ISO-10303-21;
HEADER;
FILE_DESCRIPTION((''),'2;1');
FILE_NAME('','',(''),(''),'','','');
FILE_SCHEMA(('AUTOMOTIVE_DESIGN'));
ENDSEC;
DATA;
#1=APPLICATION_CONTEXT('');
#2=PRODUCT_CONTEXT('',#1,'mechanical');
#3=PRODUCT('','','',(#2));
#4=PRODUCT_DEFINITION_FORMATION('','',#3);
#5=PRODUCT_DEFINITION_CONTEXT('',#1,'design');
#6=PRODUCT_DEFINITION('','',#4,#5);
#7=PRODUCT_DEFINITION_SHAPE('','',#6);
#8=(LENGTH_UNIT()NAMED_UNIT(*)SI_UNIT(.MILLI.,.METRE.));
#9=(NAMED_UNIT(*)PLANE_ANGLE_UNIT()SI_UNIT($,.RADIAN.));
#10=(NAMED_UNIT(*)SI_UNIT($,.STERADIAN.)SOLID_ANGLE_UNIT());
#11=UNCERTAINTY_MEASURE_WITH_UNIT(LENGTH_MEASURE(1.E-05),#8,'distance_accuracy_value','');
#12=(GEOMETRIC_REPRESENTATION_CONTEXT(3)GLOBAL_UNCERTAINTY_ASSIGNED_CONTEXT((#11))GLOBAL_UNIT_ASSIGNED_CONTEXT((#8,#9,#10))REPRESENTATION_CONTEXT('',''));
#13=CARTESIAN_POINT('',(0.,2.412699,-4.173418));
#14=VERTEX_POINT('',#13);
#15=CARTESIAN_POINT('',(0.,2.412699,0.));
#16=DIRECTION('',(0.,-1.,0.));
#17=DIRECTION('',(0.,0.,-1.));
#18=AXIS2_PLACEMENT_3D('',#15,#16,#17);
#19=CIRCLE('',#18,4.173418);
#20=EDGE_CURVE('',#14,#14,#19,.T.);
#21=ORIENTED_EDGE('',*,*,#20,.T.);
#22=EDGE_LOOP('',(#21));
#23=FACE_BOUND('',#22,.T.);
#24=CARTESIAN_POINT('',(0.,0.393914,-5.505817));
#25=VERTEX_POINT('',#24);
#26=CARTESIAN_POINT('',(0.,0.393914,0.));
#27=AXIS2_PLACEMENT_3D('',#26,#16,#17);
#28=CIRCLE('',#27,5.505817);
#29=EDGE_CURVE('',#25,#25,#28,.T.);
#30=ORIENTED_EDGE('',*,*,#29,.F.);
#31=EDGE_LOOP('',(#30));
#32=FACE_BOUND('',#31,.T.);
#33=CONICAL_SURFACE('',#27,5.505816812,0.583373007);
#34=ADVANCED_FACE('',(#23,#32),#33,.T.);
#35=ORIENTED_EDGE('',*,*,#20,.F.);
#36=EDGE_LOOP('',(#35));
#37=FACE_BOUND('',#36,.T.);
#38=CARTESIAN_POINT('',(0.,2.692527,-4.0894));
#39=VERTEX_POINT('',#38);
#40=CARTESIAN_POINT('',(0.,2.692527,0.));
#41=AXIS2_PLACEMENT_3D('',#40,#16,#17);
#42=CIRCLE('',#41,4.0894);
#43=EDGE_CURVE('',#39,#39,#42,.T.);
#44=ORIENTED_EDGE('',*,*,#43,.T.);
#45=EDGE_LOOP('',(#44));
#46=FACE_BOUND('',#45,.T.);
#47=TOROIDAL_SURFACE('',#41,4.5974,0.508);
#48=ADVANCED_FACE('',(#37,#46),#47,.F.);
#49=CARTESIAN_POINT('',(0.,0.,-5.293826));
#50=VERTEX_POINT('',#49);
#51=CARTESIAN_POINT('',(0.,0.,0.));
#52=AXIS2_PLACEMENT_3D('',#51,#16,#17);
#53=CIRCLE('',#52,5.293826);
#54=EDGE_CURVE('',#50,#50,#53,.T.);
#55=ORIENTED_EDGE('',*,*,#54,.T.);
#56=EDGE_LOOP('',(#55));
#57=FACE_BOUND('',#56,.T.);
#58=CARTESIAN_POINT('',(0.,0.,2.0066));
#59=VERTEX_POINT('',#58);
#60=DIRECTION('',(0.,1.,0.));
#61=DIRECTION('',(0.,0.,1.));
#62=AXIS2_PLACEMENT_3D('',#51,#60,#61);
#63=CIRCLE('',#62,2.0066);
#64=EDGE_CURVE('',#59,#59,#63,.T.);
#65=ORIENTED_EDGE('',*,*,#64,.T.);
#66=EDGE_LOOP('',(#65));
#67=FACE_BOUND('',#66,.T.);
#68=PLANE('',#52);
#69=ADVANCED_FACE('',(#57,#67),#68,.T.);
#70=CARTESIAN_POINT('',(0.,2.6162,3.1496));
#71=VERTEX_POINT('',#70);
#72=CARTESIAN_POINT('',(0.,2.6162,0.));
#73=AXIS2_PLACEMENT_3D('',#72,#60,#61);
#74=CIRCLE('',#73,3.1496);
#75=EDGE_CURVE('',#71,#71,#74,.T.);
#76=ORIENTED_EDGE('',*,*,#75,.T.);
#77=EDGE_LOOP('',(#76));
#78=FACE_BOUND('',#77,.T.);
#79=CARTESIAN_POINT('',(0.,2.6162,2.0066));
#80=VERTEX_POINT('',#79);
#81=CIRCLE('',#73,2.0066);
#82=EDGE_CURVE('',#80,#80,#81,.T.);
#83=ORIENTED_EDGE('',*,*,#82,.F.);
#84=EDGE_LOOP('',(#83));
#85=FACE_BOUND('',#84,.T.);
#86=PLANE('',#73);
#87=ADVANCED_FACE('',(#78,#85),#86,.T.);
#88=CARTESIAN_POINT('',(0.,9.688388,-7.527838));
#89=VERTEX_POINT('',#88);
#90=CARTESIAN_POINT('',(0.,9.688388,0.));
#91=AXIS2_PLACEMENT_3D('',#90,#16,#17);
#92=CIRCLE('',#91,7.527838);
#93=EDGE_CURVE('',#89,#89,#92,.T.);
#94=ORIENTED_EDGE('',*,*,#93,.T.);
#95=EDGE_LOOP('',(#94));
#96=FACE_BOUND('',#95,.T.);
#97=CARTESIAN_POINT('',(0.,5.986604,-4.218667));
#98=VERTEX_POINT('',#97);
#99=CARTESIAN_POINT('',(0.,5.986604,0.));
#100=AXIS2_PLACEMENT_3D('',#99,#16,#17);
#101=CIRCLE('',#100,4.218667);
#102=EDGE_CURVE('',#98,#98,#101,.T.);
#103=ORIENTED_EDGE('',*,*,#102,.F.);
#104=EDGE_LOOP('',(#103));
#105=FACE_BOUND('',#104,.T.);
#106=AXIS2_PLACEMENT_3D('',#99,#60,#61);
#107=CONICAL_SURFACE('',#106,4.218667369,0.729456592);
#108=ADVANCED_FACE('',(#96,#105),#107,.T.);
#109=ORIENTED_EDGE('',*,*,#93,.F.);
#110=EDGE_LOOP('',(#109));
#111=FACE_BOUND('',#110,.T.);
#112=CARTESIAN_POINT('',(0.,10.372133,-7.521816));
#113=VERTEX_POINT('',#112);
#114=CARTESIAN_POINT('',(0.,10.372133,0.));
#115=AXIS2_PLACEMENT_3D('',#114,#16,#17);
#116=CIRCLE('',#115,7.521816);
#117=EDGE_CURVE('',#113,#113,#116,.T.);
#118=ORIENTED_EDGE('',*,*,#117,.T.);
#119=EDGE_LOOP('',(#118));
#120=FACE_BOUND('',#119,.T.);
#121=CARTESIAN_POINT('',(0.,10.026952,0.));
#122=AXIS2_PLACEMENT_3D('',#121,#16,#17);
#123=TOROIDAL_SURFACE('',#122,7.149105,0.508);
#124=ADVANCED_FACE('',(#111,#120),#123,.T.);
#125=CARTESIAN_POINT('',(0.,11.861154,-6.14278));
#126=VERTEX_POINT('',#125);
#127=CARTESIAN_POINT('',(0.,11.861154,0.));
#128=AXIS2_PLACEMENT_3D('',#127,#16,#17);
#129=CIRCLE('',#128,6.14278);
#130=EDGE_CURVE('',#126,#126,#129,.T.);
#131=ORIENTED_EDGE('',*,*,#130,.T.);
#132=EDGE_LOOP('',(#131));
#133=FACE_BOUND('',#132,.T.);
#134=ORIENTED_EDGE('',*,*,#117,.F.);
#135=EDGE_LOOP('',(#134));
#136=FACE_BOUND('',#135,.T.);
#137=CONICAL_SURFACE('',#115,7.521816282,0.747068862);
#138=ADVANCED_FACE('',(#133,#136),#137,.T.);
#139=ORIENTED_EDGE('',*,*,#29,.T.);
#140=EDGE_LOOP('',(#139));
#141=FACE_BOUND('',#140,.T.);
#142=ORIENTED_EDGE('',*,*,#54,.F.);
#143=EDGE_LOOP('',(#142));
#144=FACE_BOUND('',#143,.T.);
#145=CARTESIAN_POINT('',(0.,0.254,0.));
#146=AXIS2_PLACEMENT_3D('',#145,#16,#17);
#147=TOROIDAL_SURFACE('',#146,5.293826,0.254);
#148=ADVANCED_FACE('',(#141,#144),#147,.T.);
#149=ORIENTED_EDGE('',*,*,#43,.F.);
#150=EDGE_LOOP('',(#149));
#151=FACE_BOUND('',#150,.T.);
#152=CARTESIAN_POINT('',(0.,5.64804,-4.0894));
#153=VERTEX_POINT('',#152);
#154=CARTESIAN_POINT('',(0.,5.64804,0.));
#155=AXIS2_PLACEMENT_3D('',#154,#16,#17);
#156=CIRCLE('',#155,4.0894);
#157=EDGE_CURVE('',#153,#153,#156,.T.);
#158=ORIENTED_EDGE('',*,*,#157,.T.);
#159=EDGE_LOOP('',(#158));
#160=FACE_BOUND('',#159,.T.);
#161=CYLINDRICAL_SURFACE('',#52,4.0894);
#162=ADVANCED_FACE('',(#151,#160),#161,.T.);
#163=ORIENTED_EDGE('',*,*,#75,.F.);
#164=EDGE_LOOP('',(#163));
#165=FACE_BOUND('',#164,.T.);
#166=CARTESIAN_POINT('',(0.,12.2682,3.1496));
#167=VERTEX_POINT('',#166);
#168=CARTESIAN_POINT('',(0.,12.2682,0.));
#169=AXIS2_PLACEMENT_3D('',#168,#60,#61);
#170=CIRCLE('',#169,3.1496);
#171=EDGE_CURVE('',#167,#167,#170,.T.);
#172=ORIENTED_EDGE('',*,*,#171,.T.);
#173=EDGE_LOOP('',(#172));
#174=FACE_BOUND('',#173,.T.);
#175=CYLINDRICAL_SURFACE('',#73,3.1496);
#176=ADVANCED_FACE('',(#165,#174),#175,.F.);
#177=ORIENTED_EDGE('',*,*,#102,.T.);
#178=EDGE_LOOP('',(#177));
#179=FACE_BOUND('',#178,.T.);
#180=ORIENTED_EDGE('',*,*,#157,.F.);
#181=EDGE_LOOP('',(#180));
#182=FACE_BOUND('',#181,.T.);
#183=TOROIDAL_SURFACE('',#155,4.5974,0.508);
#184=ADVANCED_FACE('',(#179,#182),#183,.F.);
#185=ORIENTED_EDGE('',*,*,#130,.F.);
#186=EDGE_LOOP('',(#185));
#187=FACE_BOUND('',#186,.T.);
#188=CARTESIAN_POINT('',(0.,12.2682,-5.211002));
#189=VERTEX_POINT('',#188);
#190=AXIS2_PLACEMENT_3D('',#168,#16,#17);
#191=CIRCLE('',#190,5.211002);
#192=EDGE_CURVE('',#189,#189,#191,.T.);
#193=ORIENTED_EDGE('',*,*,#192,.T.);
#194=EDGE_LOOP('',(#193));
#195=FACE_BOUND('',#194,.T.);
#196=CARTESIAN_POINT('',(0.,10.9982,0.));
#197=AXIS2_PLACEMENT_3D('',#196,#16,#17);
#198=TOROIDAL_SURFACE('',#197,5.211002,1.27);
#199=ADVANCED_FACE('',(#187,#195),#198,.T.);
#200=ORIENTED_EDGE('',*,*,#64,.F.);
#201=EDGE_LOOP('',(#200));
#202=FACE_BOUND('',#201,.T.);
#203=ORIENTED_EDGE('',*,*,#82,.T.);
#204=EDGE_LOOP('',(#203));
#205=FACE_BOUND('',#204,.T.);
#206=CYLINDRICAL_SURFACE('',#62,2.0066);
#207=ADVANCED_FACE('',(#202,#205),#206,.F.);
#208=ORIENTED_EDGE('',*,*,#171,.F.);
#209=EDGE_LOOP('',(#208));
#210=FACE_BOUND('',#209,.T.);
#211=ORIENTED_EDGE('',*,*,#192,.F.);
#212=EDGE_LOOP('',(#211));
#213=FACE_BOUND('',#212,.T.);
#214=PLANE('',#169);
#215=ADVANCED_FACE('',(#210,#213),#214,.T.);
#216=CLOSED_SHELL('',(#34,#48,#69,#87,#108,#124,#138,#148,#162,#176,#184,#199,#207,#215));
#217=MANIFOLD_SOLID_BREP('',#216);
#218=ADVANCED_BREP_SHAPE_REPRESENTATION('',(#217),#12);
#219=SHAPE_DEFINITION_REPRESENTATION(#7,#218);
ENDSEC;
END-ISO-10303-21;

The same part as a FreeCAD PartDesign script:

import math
import FreeCAD as App
import Part
import Sketcher
Q = App.Units.Quantity

doc = App.newDocument("Part")
body = doc.addObject("PartDesign::Body", "Body")

# Sketch on XY plane
sketch1 = body.newObject("Sketcher::SketchObject", "Sketch")
sketch1.AttachmentSupport = (doc.getObject("XY_Plane"), [""])
sketch1.MapMode = "FlatFace"
sketch1.addGeometry(Part.LineSegment(App.Vector(0, 0, 0), App.Vector(5.29, 0, 0)), False)
sketch1.addGeometry(Part.ArcOfCircle(Part.Circle(App.Vector(5.29, 0.25, 0), App.Vector(0, 0, 1), 0.25), math.radians(-90), math.radians(33)), False)
sketch1.addGeometry(Part.LineSegment(App.Vector(5.51, 0.39, 0), App.Vector(4.17, 2.41, 0)), False)
sketch1.addGeometry(Part.ArcOfCircle(Part.Circle(App.Vector(4.6, 2.69, 0), App.Vector(0, 0, 1), 0.51), math.radians(180), math.radians(213)), False)
sketch1.addGeometry(Part.LineSegment(App.Vector(4.09, 2.69, 0), App.Vector(4.09, 5.65, 0)), False)
sketch1.addGeometry(Part.ArcOfCircle(Part.Circle(App.Vector(4.6, 5.65, 0), App.Vector(0, 0, 1), 0.51), math.radians(138), math.radians(180)), False)
sketch1.addGeometry(Part.LineSegment(App.Vector(4.22, 5.99, 0), App.Vector(7.53, 9.69, 0)), False)
sketch1.addGeometry(Part.ArcOfCircle(Part.Circle(App.Vector(7.15, 10.03, 0), App.Vector(0, 0, 1), 0.51), math.radians(-42), math.radians(43)), False)
sketch1.addGeometry(Part.LineSegment(App.Vector(7.52, 10.37, 0), App.Vector(6.14, 11.86, 0)), False)
sketch1.addGeometry(Part.ArcOfCircle(Part.Circle(App.Vector(5.21, 11, 0), App.Vector(0, 0, 1), 1.27), math.radians(43), math.radians(90)), False)
sketch1.addGeometry(Part.LineSegment(App.Vector(5.21, 12.27, 0), App.Vector(0, 12.27, 0)), False)
sketch1.addGeometry(Part.LineSegment(App.Vector(0, 12.27, 0), App.Vector(0, 0, 0)), False)
sketch1.addConstraint(Sketcher.Constraint("Tangent", 0, 2, 1, 1))
sketch1.addConstraint(Sketcher.Constraint("Tangent", 1, 2, 2, 1))
sketch1.addConstraint(Sketcher.Constraint("Tangent", 2, 2, 3, 2))
sketch1.addConstraint(Sketcher.Constraint("Tangent", 3, 1, 4, 1))
sketch1.addConstraint(Sketcher.Constraint("Tangent", 4, 2, 5, 2))
sketch1.addConstraint(Sketcher.Constraint("Tangent", 5, 1, 6, 1))
sketch1.addConstraint(Sketcher.Constraint("Tangent", 6, 2, 7, 1))
sketch1.addConstraint(Sketcher.Constraint("Tangent", 7, 2, 8, 1))
sketch1.addConstraint(Sketcher.Constraint("Tangent", 8, 2, 9, 1))
sketch1.addConstraint(Sketcher.Constraint("Tangent", 9, 2, 10, 1))
sketch1.addConstraint(Sketcher.Constraint("Coincident", 10, 2, 11, 1))
sketch1.addConstraint(Sketcher.Constraint("Coincident", 11, 2, 0, 1))
sketch1.addConstraint(Sketcher.Constraint("Horizontal", 0))
sketch1.addConstraint(Sketcher.Constraint("Vertical", 4))
sketch1.addConstraint(Sketcher.Constraint("Horizontal", 10))
sketch1.addConstraint(Sketcher.Constraint("Vertical", 11))
sketch1.addConstraint(Sketcher.Constraint("Coincident", 11, 2, -1, 1))
sketch1.addConstraint(Sketcher.Constraint("Equal", 3, 5))
sketch1.addConstraint(Sketcher.Constraint("Equal", 5, 7))
sketch1.addConstraint(Sketcher.Constraint("Radius", 1, Q("0.01 in")))
sketch1.addConstraint(Sketcher.Constraint("Radius", 3, Q("0.02 in")))
sketch1.addConstraint(Sketcher.Constraint("Radius", 9, Q("0.05 in")))
sketch1.addConstraint(Sketcher.Constraint("DistanceY", 11, 2, 11, 1, Q("0.483 in")))
sketch1.addConstraint(Sketcher.Constraint("DistanceX", -1, 1, 3, 3, Q("0.181 in")))
sketch1.addConstraint(Sketcher.Constraint("DistanceY", -1, 1, 2, 2, Q("2.412699 mm")))
sketch1.addConstraint(Sketcher.Constraint("DistanceX", 2, 2, 1, 2, Q("1.332398 mm")))
sketch1.addConstraint(Sketcher.Constraint("DistanceY", 7, 3, 8, 2, Q("1.834202 mm")))
sketch1.addConstraint(Sketcher.Constraint("Distance", 6, Q("4.96526 mm")))
sketch1.addConstraint(Sketcher.Constraint("DistanceX", 10, 2, 10, 1, Q("5.211002 mm")))
sketch1.addConstraint(Sketcher.Constraint("DistanceY", 4, 1, 4, 2, Q("2.955513 mm")))
revolution = body.newObject("PartDesign::Revolution", "Revolution")
revolution.Profile = sketch1
revolution.ReferenceAxis = (sketch1, ["V_Axis"])
revolution.Angle = 360

# Sketch on XZ plane
sketch2 = body.newObject("Sketcher::SketchObject", "Sketch001")
sketch2.AttachmentSupport = (doc.getObject("XZ_Plane"), [""])
sketch2.MapMode = "FlatFace"
sketch2.AttachmentOffset = App.Placement(App.Vector(0, 0, -0.483 * 25.4), App.Rotation())
sketch2.addGeometry(Part.Circle(App.Vector(0, 0, 0), App.Vector(0, 0, 1), 3.1), False)
sketch2.addGeometry(Part.Circle(App.Vector(0, 0, 0), App.Vector(0, 0, 1), 2), False)
sketch2.addConstraint(Sketcher.Constraint("Coincident", 0, 3, -1, 1))
sketch2.addConstraint(Sketcher.Constraint("Coincident", 1, 3, -1, 1))
sketch2.addConstraint(Sketcher.Constraint("Diameter", 0, Q("0.248 in")))
sketch2.addConstraint(Sketcher.Constraint("Diameter", 1, Q("0.158 in")))
pocket1 = body.newObject("PartDesign::Pocket", "Pocket")
pocket1.Profile = sketch2
pocket1.Length = Q("0.38 in")
pocket1.Reversed = True

# Sketch on XZ plane
sketch3 = body.newObject("Sketcher::SketchObject", "Sketch002")
sketch3.AttachmentSupport = (doc.getObject("XZ_Plane"), [""])
sketch3.MapMode = "FlatFace"
sketch3.AttachmentOffset = App.Placement(App.Vector(0, 0, -0.483 * 25.4), App.Rotation())
sketch3.addGeometry(Part.Circle(App.Vector(0, 0, 0), App.Vector(0, 0, 1), 2), False)
sketch3.addConstraint(Sketcher.Constraint("Coincident", 0, 3, -1, 1))
sketch3.addConstraint(Sketcher.Constraint("Diameter", 0, Q("0.158 in")))
pocket2 = body.newObject("PartDesign::Pocket", "Pocket001")
pocket2.Profile = sketch3
pocket2.Type = "ThroughAll"
pocket2.Reversed = True

doc.recompute()
